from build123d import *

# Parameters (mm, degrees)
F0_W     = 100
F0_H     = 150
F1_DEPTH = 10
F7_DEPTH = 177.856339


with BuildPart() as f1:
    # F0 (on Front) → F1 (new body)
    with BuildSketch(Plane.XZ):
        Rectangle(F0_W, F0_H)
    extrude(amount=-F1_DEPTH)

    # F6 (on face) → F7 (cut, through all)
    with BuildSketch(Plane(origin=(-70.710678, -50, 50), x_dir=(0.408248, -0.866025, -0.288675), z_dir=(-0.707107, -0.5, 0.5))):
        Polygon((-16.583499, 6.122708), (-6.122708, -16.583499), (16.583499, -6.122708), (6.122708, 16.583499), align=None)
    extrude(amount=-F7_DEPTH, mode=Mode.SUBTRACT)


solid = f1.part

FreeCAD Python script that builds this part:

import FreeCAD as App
import Part
import Sketcher


def add_polygon(sketch, points):
    """Adds a closed chain of lines whose ends are joined by coincident constraints."""
    first, n = sketch.GeometryCount, len(points)
    for a, b in zip(points, points[1:] + points[:1]):
        sketch.addGeometry(Part.LineSegment(App.Vector(*a, 0), App.Vector(*b, 0)), False)
    for i in range(n):
        sketch.addConstraint(Sketcher.Constraint("Coincident", first + i, 2, first + (i + 1) % n, 1))

doc = App.newDocument("Part")
body = doc.addObject("PartDesign::Body", "Body")

# Sketch on XZ plane
sketch1 = doc.addObject("Sketcher::SketchObject", "Sketch")
body.addObject(sketch1)
sketch1.AttachmentSupport = (doc.XZ_Plane, [""])
sketch1.MapMode = "FlatFace"
add_polygon(sketch1, [(-50, 75), (-50, -75), (50, -75), (50, 75)])  # lines 0-3
sketch1.addConstraint([
    Sketcher.Constraint("Vertical", 0),
    Sketcher.Constraint("Horizontal", 1),
    Sketcher.Constraint("Vertical", 2),
    Sketcher.Constraint("Horizontal", 3),
    Sketcher.Constraint("Symmetric", 0, 2, 2, 2, -1, 1),
    Sketcher.Constraint("DistanceX", 1, 1, 1, 2, 100.0),
    Sketcher.Constraint("DistanceY", 0, 2, 0, 1, 150.0),
])
pad1 = doc.addObject("PartDesign::Pad", "Pad")
body.addObject(pad1)
pad1.Profile = sketch1
pad1.Length = 10
pad1.Reversed = True

# Sketch on an angled plane
sketch2 = doc.addObject("Sketcher::SketchObject", "Sketch001")
body.addObject(sketch2)
sketch2.Placement = App.Placement(App.Vector(-70.710678, -50, 50), App.Rotation(App.Vector(0.408248194, -0.866025448, -0.288675137), App.Vector(0.577350204, -0.000000113, 0.816496628), App.Vector(-0.707106891, -0.499999923, 0.499999923), "ZXY"))
add_polygon(sketch2, [(-17, 6), (-6, -17), (17, -6), (6, 17)])  # lines 0-3
sketch2.addConstraint([
    Sketcher.Constraint("Symmetric", 0, 2, 2, 2, -1, 1),
    Sketcher.Constraint("Symmetric", 1, 2, 3, 2, -1, 1),
    Sketcher.Constraint("Perpendicular", 0, 1),
    Sketcher.Constraint("Equal", 0, 1),
    Sketcher.Constraint("Distance", 0, 25.0),
    Sketcher.Constraint("DistanceY", 0, 2, 2, 2, 33.166998),
])
pocket1 = doc.addObject("PartDesign::Pocket", "Pocket")
body.addObject(pocket1)
pocket1.Profile = sketch2
pocket1.Type = "ThroughAll"

doc.recompute()
